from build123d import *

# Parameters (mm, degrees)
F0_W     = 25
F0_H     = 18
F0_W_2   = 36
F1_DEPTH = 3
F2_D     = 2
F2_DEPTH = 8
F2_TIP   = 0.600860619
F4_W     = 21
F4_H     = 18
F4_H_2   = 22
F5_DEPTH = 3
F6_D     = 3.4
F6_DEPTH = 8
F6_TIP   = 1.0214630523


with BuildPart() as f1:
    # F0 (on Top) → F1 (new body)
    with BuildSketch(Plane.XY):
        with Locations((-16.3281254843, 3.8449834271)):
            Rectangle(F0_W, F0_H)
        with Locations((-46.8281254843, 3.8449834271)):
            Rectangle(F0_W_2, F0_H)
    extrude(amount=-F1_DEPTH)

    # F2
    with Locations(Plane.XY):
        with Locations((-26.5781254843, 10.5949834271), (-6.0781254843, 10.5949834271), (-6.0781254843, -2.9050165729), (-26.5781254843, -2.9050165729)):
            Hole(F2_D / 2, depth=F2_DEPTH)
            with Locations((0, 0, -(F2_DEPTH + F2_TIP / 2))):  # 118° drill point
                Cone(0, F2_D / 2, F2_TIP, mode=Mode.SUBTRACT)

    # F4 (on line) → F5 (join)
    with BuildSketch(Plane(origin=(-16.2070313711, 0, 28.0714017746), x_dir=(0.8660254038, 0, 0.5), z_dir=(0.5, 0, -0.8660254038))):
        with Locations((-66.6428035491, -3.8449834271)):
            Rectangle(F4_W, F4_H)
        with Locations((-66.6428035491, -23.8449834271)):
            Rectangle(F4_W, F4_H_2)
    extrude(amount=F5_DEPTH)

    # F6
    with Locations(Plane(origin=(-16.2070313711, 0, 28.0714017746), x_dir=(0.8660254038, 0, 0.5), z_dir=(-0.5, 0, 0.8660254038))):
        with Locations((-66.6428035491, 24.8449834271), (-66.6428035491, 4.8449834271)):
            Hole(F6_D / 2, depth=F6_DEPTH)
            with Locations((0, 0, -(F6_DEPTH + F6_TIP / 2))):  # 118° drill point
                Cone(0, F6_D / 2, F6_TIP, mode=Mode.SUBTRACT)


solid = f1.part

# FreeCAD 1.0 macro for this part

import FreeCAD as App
import Part
import Sketcher
from FreeCAD import Vector
Q = App.Units.Quantity


def add_polygon(sketch, points):
    """Adds a closed chain of lines whose ends are joined by coincident constraints."""
    first, n = sketch.GeometryCount, len(points)
    for a, b in zip(points, points[1:] + points[:1]):
        sketch.addGeometry(Part.LineSegment(App.Vector(*a, 0), App.Vector(*b, 0)), False)
    for i in range(n):
        sketch.addConstraint(Sketcher.Constraint("Coincident", first + i, 2, first + (i + 1) % n, 1))

doc = App.newDocument("Part")
body = doc.addObject("PartDesign::Body", "Body")

sketch1 = body.newObject("Sketcher::SketchObject", "Sketch")
sketch1.AttachmentSupport = (doc.getObject("XY_Plane"), [""])
sketch1.MapMode = "FlatFace"
add_polygon(sketch1, [(-4, -5), (-4, 13), (-65, 13), (-65, -5)])
sketch1.addConstraint([
    Sketcher.Constraint("Vertical", 0),
    Sketcher.Constraint("Horizontal", 1),
    Sketcher.Constraint("Vertical", 2),
    Sketcher.Constraint("Horizontal", 3),
    Sketcher.Constraint("DistanceX", 1, 2, 1, 1, Q("61 mm")),
    Sketcher.Constraint("DistanceY", 0, 1, 0, 2, Q("18 mm")),
    Sketcher.Constraint("DistanceX", 0, 2, -1, 1, Q("3.828125 mm")),
    Sketcher.Constraint("DistanceY", -1, 1, 0, 2, Q("12.844983 mm")),
])
pad1 = body.newObject("PartDesign::Pad", "Pad")
pad1.Profile = sketch1
pad1.Length = 3
pad1.Reversed = True

sketch2 = body.newObject("Sketcher::SketchObject", "Sketch001")
sketch2.AttachmentSupport = (doc.getObject("XY_Plane"), [""])
sketch2.MapMode = "FlatFace"
sketch2.addGeometry([
    Part.Circle(Vector(-26.6, 10.6, 0), Vector(0, 0, 1), 1),
    Part.Circle(Vector(-6.1, 10.6, 0), Vector(0, 0, 1), 1),
    Part.Circle(Vector(-6.1, -2.9, 0), Vector(0, 0, 1), 1),
    Part.Circle(Vector(-26.6, -2.9, 0), Vector(0, 0, 1), 1),
], False)
sketch2.addConstraint([
    Sketcher.Constraint("Equal", 0, 1),
    Sketcher.Constraint("Equal", 1, 2),
    Sketcher.Constraint("Equal", 2, 3),
    Sketcher.Constraint("Horizontal", 0, 3, 1, 3),
    Sketcher.Constraint("Horizontal", 2, 3, 3, 3),
    Sketcher.Constraint("Vertical", 1, 3, 2, 3),
    Sketcher.Constraint("Vertical", 0, 3, 3, 3),
    Sketcher.Constraint("Diameter", 0, Q("2 mm")),
    Sketcher.Constraint("DistanceX", 0, 3, 1, 3, Q("20.5 mm")),
    Sketcher.Constraint("DistanceY", 2, 3, 1, 3, Q("13.5 mm")),
    Sketcher.Constraint("DistanceX", 0, 3, -1, 1, Q("26.578125 mm")),
    Sketcher.Constraint("DistanceY", -1, 1, 0, 3, Q("10.594983 mm")),
])
doc.recompute()
hole = body.newObject("PartDesign::Hole", "Hole")
hole.Profile = sketch2
hole.ThreadType = "None"
hole.Diameter = 2
hole.DepthType = "Dimension"
hole.Depth = 8
hole.DrillPoint = "Angled"
hole.DrillPointAngle = 118

sketch3 = body.newObject("Sketcher::SketchObject", "Sketch002")
sketch3.Placement = App.Placement(Vector(-16.207031, 0, 28.071402), App.Rotation(Vector(0.866025404, 0, 0.5), Vector(0, -1, 0), Vector(0.5, 0, -0.866025404), "ZXY"))
add_polygon(sketch3, [(-56, 5), (-77, 5), (-77, -35), (-56, -35)])
sketch3.addConstraint([
    Sketcher.Constraint("Horizontal", 0),
    Sketcher.Constraint("Vertical", 1),
    Sketcher.Constraint("Horizontal", 2),
    Sketcher.Constraint("Vertical", 3),
    Sketcher.Constraint("DistanceX", 0, 2, 0, 1, Q("21 mm")),
    Sketcher.Constraint("DistanceY", 1, 2, 1, 1, Q("40 mm")),
    Sketcher.Constraint("DistanceX", 0, 2, -1, 1, Q("77.142804 mm")),
    Sketcher.Constraint("DistanceY", -1, 1, 0, 2, Q("5.155017 mm")),
])
pad2 = body.newObject("PartDesign::Pad", "Pad001")
pad2.Profile = sketch3
pad2.Length = 3

sketch4 = body.newObject("Sketcher::SketchObject", "Sketch003")
sketch4.Placement = App.Placement(Vector(-16.207031, 0, 28.071402), App.Rotation(Vector(0.866025404, 0, 0.5), Vector(0, 1, 0), Vector(-0.5, 0, 0.866025404), "ZXY"))
sketch4.addGeometry([
    Part.Circle(Vector(-66.6, 24.8, 0), Vector(0, 0, 1), 1.7),
    Part.Circle(Vector(-66.6, 4.8, 0), Vector(0, 0, 1), 1.7),
], False)
sketch4.addConstraint([
    Sketcher.Constraint("Equal", 0, 1),
    Sketcher.Constraint("Vertical", 0, 3, 1, 3),
    Sketcher.Constraint("Diameter", 0, Q("3.4 mm")),
    Sketcher.Constraint("DistanceY", 1, 3, 0, 3, Q("20 mm")),
    Sketcher.Constraint("DistanceX", 0, 3, -1, 1, Q("66.642804 mm")),
    Sketcher.Constraint("DistanceY", -1, 1, 0, 3, Q("24.844983 mm")),
])
doc.recompute()
hole2 = body.newObject("PartDesign::Hole", "Hole001")
hole2.Profile = sketch4
hole2.ThreadType = "None"
hole2.Diameter = 3.4
hole2.DepthType = "Dimension"
hole2.Depth = 8
hole2.DrillPoint = "Angled"
hole2.DrillPointAngle = 118

doc.recompute()
